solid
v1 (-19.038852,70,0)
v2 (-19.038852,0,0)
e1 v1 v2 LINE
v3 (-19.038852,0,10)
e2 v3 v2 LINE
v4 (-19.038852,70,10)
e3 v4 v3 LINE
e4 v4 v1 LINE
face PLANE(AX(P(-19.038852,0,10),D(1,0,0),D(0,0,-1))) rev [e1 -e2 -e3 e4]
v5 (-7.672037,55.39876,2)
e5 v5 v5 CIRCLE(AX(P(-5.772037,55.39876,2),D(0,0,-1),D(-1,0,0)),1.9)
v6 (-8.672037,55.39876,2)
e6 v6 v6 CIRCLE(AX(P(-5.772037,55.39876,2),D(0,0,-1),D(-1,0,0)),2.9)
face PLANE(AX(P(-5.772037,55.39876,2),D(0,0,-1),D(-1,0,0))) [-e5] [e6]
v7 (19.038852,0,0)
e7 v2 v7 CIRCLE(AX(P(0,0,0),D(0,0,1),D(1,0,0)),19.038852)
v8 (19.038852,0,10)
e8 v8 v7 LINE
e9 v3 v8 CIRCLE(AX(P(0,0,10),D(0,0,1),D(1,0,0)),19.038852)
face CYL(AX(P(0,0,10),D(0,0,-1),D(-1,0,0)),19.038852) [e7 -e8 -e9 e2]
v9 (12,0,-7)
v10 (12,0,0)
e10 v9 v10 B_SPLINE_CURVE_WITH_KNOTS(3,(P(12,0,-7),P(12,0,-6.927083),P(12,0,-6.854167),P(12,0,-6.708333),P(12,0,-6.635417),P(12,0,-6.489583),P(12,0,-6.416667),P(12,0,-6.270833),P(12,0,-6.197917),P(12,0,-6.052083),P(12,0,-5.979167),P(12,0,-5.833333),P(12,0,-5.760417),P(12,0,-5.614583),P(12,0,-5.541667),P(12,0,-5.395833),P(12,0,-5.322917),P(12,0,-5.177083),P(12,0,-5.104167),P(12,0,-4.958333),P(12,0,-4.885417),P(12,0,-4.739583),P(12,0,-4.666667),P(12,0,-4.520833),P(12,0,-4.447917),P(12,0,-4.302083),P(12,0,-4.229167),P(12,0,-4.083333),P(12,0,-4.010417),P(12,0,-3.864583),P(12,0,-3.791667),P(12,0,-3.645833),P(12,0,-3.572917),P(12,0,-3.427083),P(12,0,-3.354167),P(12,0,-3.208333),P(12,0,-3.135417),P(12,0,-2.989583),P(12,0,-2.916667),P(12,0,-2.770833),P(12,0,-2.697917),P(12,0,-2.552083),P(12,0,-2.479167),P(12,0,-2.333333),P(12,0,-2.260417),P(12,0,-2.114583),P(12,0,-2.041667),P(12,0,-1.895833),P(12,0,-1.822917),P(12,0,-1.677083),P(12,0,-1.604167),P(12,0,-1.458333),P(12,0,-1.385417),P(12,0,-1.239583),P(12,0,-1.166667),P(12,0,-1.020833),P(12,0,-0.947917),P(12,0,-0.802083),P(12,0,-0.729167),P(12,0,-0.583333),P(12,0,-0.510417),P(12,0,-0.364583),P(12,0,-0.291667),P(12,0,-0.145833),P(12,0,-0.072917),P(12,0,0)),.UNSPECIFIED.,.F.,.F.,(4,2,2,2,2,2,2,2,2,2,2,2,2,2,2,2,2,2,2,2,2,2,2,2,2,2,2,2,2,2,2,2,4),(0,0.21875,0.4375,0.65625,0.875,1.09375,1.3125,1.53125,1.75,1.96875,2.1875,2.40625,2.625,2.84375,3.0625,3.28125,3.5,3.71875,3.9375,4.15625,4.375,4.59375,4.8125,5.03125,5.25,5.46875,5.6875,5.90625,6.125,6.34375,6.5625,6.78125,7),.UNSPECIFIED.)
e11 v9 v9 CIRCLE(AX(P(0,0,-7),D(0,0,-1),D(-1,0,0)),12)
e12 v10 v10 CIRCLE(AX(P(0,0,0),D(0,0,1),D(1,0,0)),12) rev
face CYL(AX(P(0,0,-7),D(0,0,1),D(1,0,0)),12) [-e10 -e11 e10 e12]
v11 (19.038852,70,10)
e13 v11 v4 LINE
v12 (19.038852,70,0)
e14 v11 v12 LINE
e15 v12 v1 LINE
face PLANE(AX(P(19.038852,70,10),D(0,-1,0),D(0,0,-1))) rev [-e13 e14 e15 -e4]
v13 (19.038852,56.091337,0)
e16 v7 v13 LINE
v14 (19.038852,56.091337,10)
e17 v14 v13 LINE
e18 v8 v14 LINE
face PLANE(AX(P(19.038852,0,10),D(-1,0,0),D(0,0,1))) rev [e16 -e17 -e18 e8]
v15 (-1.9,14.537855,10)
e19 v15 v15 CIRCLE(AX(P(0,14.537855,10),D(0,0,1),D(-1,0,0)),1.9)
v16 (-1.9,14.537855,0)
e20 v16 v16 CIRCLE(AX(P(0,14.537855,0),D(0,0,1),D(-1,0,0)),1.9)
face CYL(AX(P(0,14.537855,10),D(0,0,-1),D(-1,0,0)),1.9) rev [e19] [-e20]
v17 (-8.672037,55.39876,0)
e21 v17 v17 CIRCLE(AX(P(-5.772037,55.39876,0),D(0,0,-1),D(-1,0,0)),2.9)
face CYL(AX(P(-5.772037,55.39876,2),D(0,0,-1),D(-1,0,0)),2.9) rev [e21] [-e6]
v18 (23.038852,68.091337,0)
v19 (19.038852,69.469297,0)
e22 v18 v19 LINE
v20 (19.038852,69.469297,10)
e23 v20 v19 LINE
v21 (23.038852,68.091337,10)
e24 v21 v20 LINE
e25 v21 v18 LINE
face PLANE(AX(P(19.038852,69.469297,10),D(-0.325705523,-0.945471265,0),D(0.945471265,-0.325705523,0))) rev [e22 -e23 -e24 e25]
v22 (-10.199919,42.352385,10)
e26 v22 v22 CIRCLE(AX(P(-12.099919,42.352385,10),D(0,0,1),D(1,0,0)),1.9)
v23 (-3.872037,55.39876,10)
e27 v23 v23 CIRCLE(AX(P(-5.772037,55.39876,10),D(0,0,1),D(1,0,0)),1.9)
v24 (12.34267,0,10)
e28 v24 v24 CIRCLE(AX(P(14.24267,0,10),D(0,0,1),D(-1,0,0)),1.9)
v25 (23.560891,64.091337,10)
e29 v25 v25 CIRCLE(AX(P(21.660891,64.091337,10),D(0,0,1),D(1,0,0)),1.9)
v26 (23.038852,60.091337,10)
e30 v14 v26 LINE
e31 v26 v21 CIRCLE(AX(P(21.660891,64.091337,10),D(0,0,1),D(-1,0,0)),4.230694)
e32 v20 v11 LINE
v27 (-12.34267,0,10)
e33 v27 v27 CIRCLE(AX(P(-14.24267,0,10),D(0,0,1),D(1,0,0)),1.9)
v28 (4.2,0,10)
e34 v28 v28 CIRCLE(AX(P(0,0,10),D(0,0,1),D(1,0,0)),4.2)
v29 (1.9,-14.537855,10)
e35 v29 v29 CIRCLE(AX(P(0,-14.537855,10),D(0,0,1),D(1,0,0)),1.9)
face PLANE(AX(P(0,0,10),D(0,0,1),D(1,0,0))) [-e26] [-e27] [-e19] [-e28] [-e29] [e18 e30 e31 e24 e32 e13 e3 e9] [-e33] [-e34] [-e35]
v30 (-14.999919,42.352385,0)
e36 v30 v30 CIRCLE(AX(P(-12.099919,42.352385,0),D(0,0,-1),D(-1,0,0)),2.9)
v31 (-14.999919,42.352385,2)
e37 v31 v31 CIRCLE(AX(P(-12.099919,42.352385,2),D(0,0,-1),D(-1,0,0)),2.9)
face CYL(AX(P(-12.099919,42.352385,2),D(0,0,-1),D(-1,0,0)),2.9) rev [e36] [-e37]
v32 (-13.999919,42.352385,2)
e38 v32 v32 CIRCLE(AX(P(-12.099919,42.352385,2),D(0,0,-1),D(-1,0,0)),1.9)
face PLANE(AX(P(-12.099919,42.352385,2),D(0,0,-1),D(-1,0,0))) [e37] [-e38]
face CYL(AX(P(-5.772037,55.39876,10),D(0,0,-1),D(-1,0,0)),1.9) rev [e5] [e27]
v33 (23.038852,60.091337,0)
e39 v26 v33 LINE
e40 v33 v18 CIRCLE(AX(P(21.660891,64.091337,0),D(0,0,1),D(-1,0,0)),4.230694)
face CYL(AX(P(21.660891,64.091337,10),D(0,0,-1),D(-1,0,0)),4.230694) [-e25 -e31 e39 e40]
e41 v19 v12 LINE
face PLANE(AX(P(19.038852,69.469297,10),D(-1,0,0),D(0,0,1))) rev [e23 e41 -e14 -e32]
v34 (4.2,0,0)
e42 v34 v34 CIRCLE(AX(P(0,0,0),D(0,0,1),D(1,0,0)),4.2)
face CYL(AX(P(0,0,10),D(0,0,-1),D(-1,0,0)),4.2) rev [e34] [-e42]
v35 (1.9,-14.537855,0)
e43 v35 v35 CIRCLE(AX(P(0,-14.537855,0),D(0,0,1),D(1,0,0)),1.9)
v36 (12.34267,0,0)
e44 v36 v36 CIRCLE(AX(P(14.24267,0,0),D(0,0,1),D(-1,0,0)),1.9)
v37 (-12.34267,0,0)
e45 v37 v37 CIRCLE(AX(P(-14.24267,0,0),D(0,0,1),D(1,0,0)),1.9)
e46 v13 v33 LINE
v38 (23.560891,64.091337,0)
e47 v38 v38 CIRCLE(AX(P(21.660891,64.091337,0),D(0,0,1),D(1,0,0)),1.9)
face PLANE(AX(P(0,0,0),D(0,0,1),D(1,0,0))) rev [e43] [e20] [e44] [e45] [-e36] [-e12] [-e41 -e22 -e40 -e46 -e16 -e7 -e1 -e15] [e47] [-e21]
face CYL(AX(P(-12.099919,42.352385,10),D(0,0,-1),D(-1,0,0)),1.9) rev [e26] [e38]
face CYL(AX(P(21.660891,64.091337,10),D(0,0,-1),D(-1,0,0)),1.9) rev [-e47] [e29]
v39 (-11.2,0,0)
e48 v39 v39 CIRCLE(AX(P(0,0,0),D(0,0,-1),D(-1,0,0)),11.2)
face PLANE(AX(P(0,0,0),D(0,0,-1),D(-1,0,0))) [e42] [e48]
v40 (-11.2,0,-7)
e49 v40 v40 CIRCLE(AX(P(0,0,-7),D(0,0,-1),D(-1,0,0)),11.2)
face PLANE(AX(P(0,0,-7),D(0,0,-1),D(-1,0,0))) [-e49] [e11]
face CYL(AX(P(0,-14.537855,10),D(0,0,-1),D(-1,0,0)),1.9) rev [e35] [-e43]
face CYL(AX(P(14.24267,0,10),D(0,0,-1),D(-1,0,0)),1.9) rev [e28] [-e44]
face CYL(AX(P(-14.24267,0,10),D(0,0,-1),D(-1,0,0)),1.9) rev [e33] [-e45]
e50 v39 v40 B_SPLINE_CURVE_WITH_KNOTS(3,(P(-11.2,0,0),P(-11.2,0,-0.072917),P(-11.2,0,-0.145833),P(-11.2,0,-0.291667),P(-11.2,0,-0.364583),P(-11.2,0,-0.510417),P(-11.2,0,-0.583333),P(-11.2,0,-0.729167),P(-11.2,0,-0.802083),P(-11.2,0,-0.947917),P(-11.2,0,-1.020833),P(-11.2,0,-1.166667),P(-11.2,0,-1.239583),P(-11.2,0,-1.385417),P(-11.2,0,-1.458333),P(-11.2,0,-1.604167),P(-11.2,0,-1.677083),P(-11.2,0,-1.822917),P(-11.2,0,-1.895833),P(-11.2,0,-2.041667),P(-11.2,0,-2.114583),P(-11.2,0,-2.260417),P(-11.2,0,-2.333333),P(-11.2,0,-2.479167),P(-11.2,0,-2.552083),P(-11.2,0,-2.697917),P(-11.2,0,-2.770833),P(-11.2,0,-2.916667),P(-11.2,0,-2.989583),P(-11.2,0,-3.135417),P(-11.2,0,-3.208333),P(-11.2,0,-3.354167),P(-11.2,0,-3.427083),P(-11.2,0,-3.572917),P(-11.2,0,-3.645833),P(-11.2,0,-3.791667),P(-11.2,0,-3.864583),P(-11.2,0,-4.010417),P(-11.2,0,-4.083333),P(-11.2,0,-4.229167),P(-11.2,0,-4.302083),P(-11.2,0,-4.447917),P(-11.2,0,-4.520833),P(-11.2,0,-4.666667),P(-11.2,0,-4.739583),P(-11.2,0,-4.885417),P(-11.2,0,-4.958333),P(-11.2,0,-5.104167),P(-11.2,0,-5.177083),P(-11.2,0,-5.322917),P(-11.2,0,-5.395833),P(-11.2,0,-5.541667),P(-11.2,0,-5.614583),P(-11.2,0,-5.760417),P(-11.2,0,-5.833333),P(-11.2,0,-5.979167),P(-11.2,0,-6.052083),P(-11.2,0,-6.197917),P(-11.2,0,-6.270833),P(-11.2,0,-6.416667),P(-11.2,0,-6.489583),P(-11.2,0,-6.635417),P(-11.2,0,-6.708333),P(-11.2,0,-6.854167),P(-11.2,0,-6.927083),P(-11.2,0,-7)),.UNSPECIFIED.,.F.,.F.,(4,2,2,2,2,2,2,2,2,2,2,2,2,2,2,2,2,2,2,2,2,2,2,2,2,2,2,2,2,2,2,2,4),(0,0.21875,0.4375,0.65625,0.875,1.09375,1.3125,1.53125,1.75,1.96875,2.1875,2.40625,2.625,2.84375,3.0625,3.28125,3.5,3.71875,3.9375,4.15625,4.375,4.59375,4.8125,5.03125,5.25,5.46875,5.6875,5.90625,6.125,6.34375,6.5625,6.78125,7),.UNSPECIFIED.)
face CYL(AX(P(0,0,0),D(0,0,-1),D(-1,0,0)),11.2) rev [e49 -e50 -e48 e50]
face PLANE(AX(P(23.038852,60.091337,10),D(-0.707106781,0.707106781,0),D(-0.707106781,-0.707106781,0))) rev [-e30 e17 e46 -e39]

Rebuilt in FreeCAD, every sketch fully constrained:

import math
import FreeCAD as App
import Part
import Sketcher
Q = App.Units.Quantity

doc = App.newDocument("Part")
body = doc.addObject("PartDesign::Body", "Body")

sketch1 = body.newObject("Sketcher::SketchObject", "Sketch")
sketch1.AttachmentSupport = (doc.getObject("XY_Plane"), [""])
sketch1.MapMode = "FlatFace"
sketch1.addGeometry([
    Part.LineSegment(App.Vector(-19, 70, 0), App.Vector(-19, 0, 0)),
    Part.ArcOfCircle(Part.Circle(App.Vector(0, 0, 0), App.Vector(0, 0, 1), 19), math.radians(180), math.radians(360)),
    Part.LineSegment(App.Vector(19, 0, 0), App.Vector(19, 56.1, 0)),
    Part.LineSegment(App.Vector(19, 56.1, 0), App.Vector(23, 60.1, 0)),
    Part.ArcOfCircle(Part.Circle(App.Vector(21.7, 64.1, 0), App.Vector(0, 0, 1), 4.2), math.radians(-71), math.radians(71)),
    Part.LineSegment(App.Vector(23, 68.1, 0), App.Vector(19, 69.5, 0)),
    Part.LineSegment(App.Vector(19, 69.5, 0), App.Vector(19, 70, 0)),
    Part.LineSegment(App.Vector(19, 70, 0), App.Vector(-19, 70, 0)),
    Part.Circle(App.Vector(21.7, 64.1, 0), App.Vector(0, 0, 1), 1.9),
    Part.Circle(App.Vector(14.2, 0, 0), App.Vector(0, 0, 1), 1.9),
    Part.Circle(App.Vector(-5.8, 55.4, 0), App.Vector(0, 0, 1), 1.9),
    Part.Circle(App.Vector(-12.1, 42.4, 0), App.Vector(0, 0, 1), 1.9),
    Part.Circle(App.Vector(0, 14.5, 0), App.Vector(0, 0, 1), 1.9),
    Part.Circle(App.Vector(0, 0, 0), App.Vector(0, 0, 1), 4.2),
    Part.Circle(App.Vector(0, -14.5, 0), App.Vector(0, 0, 1), 1.9),
    Part.Circle(App.Vector(-14.2, 0, 0), App.Vector(0, 0, 1), 1.9),
], False)
sketch1.addConstraint([
    Sketcher.Constraint("Tangent", 0, 2, 1, 1),
    Sketcher.Constraint("Tangent", 1, 2, 2, 1),
    Sketcher.Constraint("Coincident", 2, 2, 3, 1),
    Sketcher.Constraint("Coincident", 3, 2, 4, 1),
    Sketcher.Constraint("Tangent", 4, 2, 5, 1),
    Sketcher.Constraint("Coincident", 5, 2, 6, 1),
    Sketcher.Constraint("Coincident", 6, 2, 7, 1),
    Sketcher.Constraint("Coincident", 7, 2, 0, 1),
    Sketcher.Constraint("Vertical", 0),
    Sketcher.Constraint("Vertical", 2),
    Sketcher.Constraint("Vertical", 6),
    Sketcher.Constraint("Horizontal", 7),
    Sketcher.Constraint("Coincident", 1, 3, -1, 1),
    Sketcher.Constraint("Coincident", 13, 3, -1, 1),
    Sketcher.Constraint("Coincident", 8, 3, 4, 3),
    Sketcher.Constraint("Equal", 8, 9),
    Sketcher.Constraint("Equal", 9, 10),
    Sketcher.Constraint("Equal", 10, 11),
    Sketcher.Constraint("Equal", 11, 12),
    Sketcher.Constraint("Equal", 12, 14),
    Sketcher.Constraint("Equal", 14, 15),
    Sketcher.Constraint("Symmetric", 12, 3, 14, 3, -1, 1),
    Sketcher.Constraint("Symmetric", 9, 3, 15, 3, -1, 1),
    Sketcher.Constraint("PointOnObject", 9, 3, -1),
    Sketcher.Constraint("PointOnObject", 12, 3, -2),
    Sketcher.Constraint("Vertical", 3, 2, 4, 2),
    Sketcher.Constraint("Vertical", 2, 2, 5, 2),
    Sketcher.Constraint("Diameter", 8, 3.8),
    Sketcher.Constraint("Diameter", 13, 8.4),
    Sketcher.Constraint("DistanceY", 0, 2, 0, 1, 70.0),
    Sketcher.Constraint("Angle", 3, Q("45 deg")),
    Sketcher.Constraint("DistanceY", 2, 2, 4, 3, 8.0),
    Sketcher.Constraint("DistanceY", 3, 2, 4, 3, 4.0),
    Sketcher.Constraint("Radius", 1, 19.038852),
    Sketcher.Constraint("Radius", 4, 4.230694),
    Sketcher.Constraint("DistanceY", 2, 1, 2, 2, 56.091337),
    Sketcher.Constraint("DistanceX", -1, 1, 9, 3, 14.24267),
    Sketcher.Constraint("DistanceY", -1, 1, 10, 3, 55.39876),
    Sketcher.Constraint("DistanceX", 11, 3, -1, 1, 12.099919),
    Sketcher.Constraint("DistanceY", 11, 3, 4, 3, 21.738952),
    Sketcher.Constraint("DistanceY", 12, 3, 11, 3, 27.81453),
    Sketcher.Constraint("DistanceX", 10, 3, 2, 2, 24.810888),
])
pad1 = body.newObject("PartDesign::Pad", "Pad")
pad1.Profile = sketch1
pad1.Length = 10

sketch2 = body.newObject("Sketcher::SketchObject", "Sketch001")
sketch2.AttachmentSupport = (doc.getObject("XY_Plane"), [""])
sketch2.MapMode = "FlatFace"
sketch2.addGeometry(Part.Circle(App.Vector(0, 0, 0), App.Vector(0, 0, 1), 12), False)
sketch2.addConstraint([
    Sketcher.Constraint("Coincident", 0, 3, -1, 1),
    Sketcher.Constraint("Diameter", 0, 24.0),
])
pad2 = body.newObject("PartDesign::Pad", "Pad001")
pad2.Profile = sketch2
pad2.Length = 7
pad2.Reversed = True

sketch3 = body.newObject("Sketcher::SketchObject", "Sketch002")
sketch3.AttachmentSupport = (doc.getObject("XY_Plane"), [""])
sketch3.MapMode = "FlatFace"
sketch3.AttachmentOffset = App.Placement(App.Vector(0, 0, -7), App.Rotation())
sketch3.addGeometry(Part.Circle(App.Vector(0, 0, 0), App.Vector(0, 0, 1), 11), False)
sketch3.addConstraint([
    Sketcher.Constraint("Coincident", 0, 3, -1, 1),
    Sketcher.Constraint("Diameter", 0, 22.4),
])
pocket1 = body.newObject("PartDesign::Pocket", "Pocket")
pocket1.Profile = sketch3
pocket1.Length = 7
pocket1.Reversed = True

sketch4 = body.newObject("Sketcher::SketchObject", "Sketch003")
sketch4.AttachmentSupport = (doc.getObject("XY_Plane"), [""])
sketch4.MapMode = "FlatFace"
sketch4.addGeometry([
    Part.Circle(App.Vector(-12.1, 42.4, 0), App.Vector(0, 0, 1), 2.9),
    Part.Circle(App.Vector(-5.8, 55.4, 0), App.Vector(0, 0, 1), 2.9),
], False)
sketch4.addConstraint([
    Sketcher.Constraint("Equal", 0, 1),
    Sketcher.Constraint("Diameter", 0, 5.8),
    Sketcher.Constraint("DistanceX", 0, 3, -1, 1, 12.099919),
    Sketcher.Constraint("DistanceY", -1, 1, 1, 3, 55.39876),
    Sketcher.Constraint("DistanceY", -1, 1, 0, 3, 42.352385),
    Sketcher.Constraint("DistanceX", 1, 3, -1, 1, 5.772037),
])
pocket2 = body.newObject("PartDesign::Pocket", "Pocket001")
pocket2.Profile = sketch4
pocket2.Length = 2
pocket2.Reversed = True

doc.recompute()
